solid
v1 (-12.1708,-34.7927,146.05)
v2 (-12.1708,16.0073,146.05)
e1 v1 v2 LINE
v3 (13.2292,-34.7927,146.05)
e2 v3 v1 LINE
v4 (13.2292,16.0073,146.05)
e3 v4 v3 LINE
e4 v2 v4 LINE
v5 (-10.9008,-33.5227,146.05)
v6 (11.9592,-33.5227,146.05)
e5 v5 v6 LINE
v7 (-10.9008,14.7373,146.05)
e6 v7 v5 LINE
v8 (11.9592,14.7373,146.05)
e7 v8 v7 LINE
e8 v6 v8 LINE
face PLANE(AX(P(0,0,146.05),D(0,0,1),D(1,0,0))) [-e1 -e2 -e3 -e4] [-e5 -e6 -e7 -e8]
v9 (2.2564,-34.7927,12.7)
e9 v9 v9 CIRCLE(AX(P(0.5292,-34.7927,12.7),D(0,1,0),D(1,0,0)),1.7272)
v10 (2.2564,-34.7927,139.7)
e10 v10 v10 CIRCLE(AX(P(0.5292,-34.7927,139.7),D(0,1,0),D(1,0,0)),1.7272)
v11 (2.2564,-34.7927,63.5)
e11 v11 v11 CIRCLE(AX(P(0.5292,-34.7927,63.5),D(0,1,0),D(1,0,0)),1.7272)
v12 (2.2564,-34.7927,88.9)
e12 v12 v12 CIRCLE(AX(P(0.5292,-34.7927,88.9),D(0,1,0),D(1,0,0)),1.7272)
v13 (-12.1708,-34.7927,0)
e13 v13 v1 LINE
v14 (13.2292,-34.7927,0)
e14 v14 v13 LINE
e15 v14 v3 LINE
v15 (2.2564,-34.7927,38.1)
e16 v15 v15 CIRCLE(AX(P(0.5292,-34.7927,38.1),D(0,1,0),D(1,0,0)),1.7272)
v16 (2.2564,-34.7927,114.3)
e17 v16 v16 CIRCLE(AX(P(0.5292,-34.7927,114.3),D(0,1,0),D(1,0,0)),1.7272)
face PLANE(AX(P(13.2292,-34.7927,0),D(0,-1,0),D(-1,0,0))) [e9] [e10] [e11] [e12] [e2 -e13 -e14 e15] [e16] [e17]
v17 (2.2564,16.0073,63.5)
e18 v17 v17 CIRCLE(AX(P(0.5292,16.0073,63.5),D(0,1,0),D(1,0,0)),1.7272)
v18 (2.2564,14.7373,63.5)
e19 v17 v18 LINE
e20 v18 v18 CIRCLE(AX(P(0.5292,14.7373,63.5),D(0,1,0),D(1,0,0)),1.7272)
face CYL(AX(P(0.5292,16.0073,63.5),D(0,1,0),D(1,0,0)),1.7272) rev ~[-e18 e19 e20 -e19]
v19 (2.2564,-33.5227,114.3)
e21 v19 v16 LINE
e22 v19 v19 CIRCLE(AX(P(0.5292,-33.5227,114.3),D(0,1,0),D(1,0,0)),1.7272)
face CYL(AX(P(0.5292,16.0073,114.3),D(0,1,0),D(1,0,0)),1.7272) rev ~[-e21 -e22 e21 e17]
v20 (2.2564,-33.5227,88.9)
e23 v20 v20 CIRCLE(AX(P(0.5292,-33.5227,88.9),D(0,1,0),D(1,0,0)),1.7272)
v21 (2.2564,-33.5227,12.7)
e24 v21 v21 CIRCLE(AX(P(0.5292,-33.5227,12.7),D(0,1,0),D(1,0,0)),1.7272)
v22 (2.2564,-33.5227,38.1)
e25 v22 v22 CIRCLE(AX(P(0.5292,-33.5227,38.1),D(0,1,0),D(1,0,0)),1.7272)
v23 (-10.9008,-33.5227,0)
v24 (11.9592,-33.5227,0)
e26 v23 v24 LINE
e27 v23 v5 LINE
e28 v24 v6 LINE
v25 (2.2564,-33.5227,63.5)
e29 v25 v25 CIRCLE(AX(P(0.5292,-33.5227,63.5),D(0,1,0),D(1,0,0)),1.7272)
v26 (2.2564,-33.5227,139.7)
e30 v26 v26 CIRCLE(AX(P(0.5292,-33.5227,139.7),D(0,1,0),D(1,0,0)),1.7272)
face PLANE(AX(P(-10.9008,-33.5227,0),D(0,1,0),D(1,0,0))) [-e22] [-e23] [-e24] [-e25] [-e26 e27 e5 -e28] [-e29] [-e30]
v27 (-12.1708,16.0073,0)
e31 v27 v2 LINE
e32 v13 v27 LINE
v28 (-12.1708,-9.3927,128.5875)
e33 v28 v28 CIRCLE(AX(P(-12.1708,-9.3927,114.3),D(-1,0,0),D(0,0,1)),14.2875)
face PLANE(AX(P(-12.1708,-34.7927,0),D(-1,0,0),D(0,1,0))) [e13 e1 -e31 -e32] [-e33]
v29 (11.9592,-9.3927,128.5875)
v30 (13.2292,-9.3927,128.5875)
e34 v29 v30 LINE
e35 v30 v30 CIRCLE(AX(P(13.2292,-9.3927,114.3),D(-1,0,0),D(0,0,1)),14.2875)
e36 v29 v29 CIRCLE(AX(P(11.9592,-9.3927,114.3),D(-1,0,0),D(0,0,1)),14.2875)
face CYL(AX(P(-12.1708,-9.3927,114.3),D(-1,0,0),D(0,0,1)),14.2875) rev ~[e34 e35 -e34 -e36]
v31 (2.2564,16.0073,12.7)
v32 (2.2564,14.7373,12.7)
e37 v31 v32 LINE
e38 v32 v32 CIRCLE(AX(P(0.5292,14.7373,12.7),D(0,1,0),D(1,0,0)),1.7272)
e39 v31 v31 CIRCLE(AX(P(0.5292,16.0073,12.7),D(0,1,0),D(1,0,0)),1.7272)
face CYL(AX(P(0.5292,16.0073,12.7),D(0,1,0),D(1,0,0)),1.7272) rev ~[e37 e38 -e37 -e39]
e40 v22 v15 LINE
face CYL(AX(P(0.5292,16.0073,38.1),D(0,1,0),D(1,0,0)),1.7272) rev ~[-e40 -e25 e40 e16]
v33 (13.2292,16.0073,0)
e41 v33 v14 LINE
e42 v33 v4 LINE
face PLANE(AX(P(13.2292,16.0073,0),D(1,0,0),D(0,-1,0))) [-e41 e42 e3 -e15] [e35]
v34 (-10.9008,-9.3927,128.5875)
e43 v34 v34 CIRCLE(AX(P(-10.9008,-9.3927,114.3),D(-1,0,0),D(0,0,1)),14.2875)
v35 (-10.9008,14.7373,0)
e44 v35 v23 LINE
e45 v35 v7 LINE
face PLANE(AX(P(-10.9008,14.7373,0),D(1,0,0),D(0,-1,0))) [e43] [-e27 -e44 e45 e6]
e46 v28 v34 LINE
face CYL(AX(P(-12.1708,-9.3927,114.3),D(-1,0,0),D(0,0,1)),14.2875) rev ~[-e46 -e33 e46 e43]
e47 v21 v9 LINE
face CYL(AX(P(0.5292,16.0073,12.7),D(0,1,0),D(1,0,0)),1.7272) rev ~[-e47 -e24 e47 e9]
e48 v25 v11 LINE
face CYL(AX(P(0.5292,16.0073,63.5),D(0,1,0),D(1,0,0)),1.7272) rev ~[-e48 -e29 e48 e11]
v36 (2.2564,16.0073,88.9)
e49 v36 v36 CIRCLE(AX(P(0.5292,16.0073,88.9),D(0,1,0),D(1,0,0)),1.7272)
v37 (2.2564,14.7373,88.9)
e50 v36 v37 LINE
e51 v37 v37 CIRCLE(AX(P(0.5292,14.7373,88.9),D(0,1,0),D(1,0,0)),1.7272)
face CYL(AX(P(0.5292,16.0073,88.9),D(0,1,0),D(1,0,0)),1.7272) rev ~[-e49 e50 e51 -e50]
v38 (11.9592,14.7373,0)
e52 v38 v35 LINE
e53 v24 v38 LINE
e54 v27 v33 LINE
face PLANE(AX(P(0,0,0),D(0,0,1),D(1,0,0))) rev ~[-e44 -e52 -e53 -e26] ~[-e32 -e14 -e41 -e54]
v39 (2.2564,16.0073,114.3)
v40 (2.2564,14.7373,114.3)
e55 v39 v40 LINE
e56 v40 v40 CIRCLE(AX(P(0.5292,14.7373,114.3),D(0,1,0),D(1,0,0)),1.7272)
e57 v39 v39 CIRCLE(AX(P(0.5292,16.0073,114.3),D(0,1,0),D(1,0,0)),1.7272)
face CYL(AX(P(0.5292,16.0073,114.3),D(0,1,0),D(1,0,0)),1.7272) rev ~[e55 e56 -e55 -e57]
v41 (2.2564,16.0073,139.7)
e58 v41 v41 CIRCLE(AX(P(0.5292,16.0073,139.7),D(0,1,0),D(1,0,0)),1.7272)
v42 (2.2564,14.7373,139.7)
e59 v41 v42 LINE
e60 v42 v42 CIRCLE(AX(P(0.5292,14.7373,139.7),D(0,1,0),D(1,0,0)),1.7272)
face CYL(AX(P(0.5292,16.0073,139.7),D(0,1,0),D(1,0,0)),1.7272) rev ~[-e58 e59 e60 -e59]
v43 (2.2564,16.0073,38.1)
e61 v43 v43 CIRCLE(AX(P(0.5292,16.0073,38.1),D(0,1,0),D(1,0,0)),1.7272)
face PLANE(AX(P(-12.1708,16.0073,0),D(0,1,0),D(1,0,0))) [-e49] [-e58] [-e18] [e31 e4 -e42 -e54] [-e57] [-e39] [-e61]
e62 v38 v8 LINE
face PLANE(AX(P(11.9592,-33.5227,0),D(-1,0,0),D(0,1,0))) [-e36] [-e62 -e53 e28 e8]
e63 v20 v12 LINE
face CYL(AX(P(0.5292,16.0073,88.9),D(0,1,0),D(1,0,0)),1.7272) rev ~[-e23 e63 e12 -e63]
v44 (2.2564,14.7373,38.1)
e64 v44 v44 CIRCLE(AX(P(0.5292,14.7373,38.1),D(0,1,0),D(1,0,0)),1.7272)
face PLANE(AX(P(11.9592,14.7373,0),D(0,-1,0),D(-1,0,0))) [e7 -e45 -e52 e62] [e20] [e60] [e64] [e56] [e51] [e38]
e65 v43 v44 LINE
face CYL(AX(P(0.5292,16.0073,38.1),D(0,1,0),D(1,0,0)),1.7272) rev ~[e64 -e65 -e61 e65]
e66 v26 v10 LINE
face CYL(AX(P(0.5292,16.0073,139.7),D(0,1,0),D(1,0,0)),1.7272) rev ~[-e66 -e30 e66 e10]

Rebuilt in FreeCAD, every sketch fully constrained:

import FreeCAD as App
import Part
import Sketcher
Q = App.Units.Quantity

doc = App.newDocument("Part")
body = doc.addObject("PartDesign::Body", "Body")

# Sketch on XY plane
sketch1 = body.newObject("Sketcher::SketchObject", "Sketch")
sketch1.AttachmentSupport = (doc.getObject("XY_Plane"), [""])
sketch1.MapMode = "FlatFace"
sketch1.addGeometry(Part.LineSegment(App.Vector(13, 16, 0), App.Vector(-12, 16, 0)), False)
sketch1.addGeometry(Part.LineSegment(App.Vector(-12, 16, 0), App.Vector(-12, -35, 0)), False)
sketch1.addGeometry(Part.LineSegment(App.Vector(-12, -35, 0), App.Vector(13, -35, 0)), False)
sketch1.addGeometry(Part.LineSegment(App.Vector(13, -35, 0), App.Vector(13, 16, 0)), False)
sketch1.addGeometry(Part.LineSegment(App.Vector(-11, 15, 0), App.Vector(12, 15, 0)), False)
sketch1.addGeometry(Part.LineSegment(App.Vector(12, 15, 0), App.Vector(12, -34, 0)), False)
sketch1.addGeometry(Part.LineSegment(App.Vector(12, -34, 0), App.Vector(-11, -34, 0)), False)
sketch1.addGeometry(Part.LineSegment(App.Vector(-11, -34, 0), App.Vector(-11, 15, 0)), False)
sketch1.addConstraint(Sketcher.Constraint("Coincident", 0, 2, 1, 1))
sketch1.addConstraint(Sketcher.Constraint("Coincident", 1, 2, 2, 1))
sketch1.addConstraint(Sketcher.Constraint("Coincident", 2, 2, 3, 1))
sketch1.addConstraint(Sketcher.Constraint("Coincident", 3, 2, 0, 1))
sketch1.addConstraint(Sketcher.Constraint("Coincident", 4, 2, 5, 1))
sketch1.addConstraint(Sketcher.Constraint("Coincident", 5, 2, 6, 1))
sketch1.addConstraint(Sketcher.Constraint("Coincident", 6, 2, 7, 1))
sketch1.addConstraint(Sketcher.Constraint("Coincident", 7, 2, 4, 1))
sketch1.addConstraint(Sketcher.Constraint("Horizontal", 0))
sketch1.addConstraint(Sketcher.Constraint("Vertical", 1))
sketch1.addConstraint(Sketcher.Constraint("Horizontal", 2))
sketch1.addConstraint(Sketcher.Constraint("Vertical", 3))
sketch1.addConstraint(Sketcher.Constraint("Horizontal", 4))
sketch1.addConstraint(Sketcher.Constraint("Vertical", 5))
sketch1.addConstraint(Sketcher.Constraint("Horizontal", 6))
sketch1.addConstraint(Sketcher.Constraint("Vertical", 7))
sketch1.addConstraint(Sketcher.Constraint("DistanceX", 0, 2, 0, 1, Q("1 in")))
sketch1.addConstraint(Sketcher.Constraint("DistanceY", 1, 2, 1, 1, Q("2 in")))
sketch1.addConstraint(Sketcher.Constraint("DistanceX", 4, 2, 3, 2, Q("0.05 in")))
sketch1.addConstraint(Sketcher.Constraint("DistanceY", 4, 2, 3, 2, Q("0.05 in")))
sketch1.addConstraint(Sketcher.Constraint("DistanceY", 2, 2, 5, 2, Q("0.05 in")))
sketch1.addConstraint(Sketcher.Constraint("DistanceX", 1, 2, 6, 2, Q("0.05 in")))
sketch1.addConstraint(Sketcher.Constraint("DistanceY", -1, 1, 0, 2, Q("0.6302 in")))
sketch1.addConstraint(Sketcher.Constraint("DistanceX", 0, 2, -1, 1, 12.1708))
pad1 = body.newObject("PartDesign::Pad", "Pad")
pad1.Profile = sketch1
pad1.Length = Q("5.75 in")

# Sketch on XZ plane
sketch2 = body.newObject("Sketcher::SketchObject", "Sketch001")
sketch2.AttachmentSupport = (doc.getObject("XZ_Plane"), [""])
sketch2.MapMode = "FlatFace"
sketch2.AttachmentOffset = App.Placement(App.Vector(0, 0, -0.6302087 * 25.4), App.Rotation())
sketch2.addGeometry(Part.Circle(App.Vector(0.5, 12.7, 0), App.Vector(0, 0, 1), 1.7), False)
sketch2.addConstraint(Sketcher.Constraint("Diameter", 0, Q("0.136 in")))
sketch2.addConstraint(Sketcher.Constraint("DistanceY", -1, 1, 0, 3, Q("0.5 in")))
sketch2.addConstraint(Sketcher.Constraint("DistanceX", -1, 1, 0, 3, 0.5292))
pocket1 = body.newObject("PartDesign::Pocket", "Pocket")
pocket1.Profile = sketch2
pocket1.Type = "ThroughAll"
pocket1.Reversed = True
doc.recompute()

linearpattern = body.newObject("PartDesign::LinearPattern", "LinearPattern")
linearpattern.Originals = [pocket1]
linearpattern.Direction = (doc.getObject("Z_Axis"), [""])
linearpattern.Mode = "offset"
linearpattern.Offset = Q("1 in")
linearpattern.Occurrences = 15
body.Tip = linearpattern

# Sketch on YZ plane
sketch3 = body.newObject("Sketcher::SketchObject", "Sketch002")
sketch3.AttachmentSupport = (doc.getObject("YZ_Plane"), [""])
sketch3.MapMode = "FlatFace"
sketch3.AttachmentOffset = App.Placement(App.Vector(0, 0, -12.1708), App.Rotation())
sketch3.addGeometry(Part.Circle(App.Vector(-9, 114, 0), App.Vector(0, 0, 1), 14), False)
sketch3.addConstraint(Sketcher.Constraint("Diameter", 0, Q("1.125 in")))
sketch3.addConstraint(Sketcher.Constraint("DistanceY", -1, 1, 0, 3, Q("4.5 in")))
sketch3.addConstraint(Sketcher.Constraint("DistanceX", 0, 3, -1, 1, Q("0.3698 in")))
pocket2 = body.newObject("PartDesign::Pocket", "Pocket001")
pocket2.Profile = sketch3
pocket2.Length = Q("1 in")
pocket2.Reversed = True

doc.recompute()
